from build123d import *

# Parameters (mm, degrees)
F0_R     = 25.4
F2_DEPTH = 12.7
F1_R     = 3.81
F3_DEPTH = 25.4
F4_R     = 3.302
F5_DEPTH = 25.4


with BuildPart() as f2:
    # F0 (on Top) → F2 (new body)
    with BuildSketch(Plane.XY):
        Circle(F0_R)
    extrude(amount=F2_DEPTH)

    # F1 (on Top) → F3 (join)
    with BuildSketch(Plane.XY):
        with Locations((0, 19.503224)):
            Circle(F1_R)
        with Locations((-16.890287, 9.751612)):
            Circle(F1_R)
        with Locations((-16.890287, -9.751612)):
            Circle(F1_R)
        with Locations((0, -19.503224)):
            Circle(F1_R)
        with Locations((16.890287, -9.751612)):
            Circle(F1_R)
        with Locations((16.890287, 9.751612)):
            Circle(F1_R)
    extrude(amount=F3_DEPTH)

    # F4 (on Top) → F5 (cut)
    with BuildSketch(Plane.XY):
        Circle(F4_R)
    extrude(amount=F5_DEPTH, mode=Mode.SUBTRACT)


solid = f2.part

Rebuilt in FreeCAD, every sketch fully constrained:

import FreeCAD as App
import Part
import Sketcher

V = App.Vector
Q = App.Units.Quantity

doc = App.newDocument("Part")
body = doc.addObject("PartDesign::Body", "Body")

# Sketch on XY plane
sketch1 = body.newObject("Sketcher::SketchObject", "Sketch")
sketch1.AttachmentSupport = (doc.getObject("XY_Plane"), [""])
sketch1.MapMode = "FlatFace"
sketch1.addGeometry(Part.Circle(V(0, 0, 0), V(0, 0, 1), 25.4), False)
sketch1.addConstraint([
    Sketcher.Constraint("Coincident", 0, 3, -1, 1),
    Sketcher.Constraint("Diameter", 0, Q("2 in")),
])
pad1 = body.newObject("PartDesign::Pad", "Pad")
pad1.Profile = sketch1
pad1.Length = Q("0.5 in")

# Sketch on XY plane
sketch2 = body.newObject("Sketcher::SketchObject", "Sketch001")
sketch2.AttachmentSupport = (doc.getObject("XY_Plane"), [""])
sketch2.MapMode = "FlatFace"
sketch2.addGeometry([
    Part.Circle(V(0, 19.503224, 0), V(0, 0, 1), 3.81),  # 0
    Part.Circle(V(-16.890287, 9.751612, 0), V(0, 0, 1), 3.81),  # 1
    Part.Circle(V(-16.890287, -9.751612, 0), V(0, 0, 1), 3.81),  # 2
    Part.Circle(V(0, -19.503224, 0), V(0, 0, 1), 3.81),  # 3
    Part.Circle(V(16.890287, -9.751612, 0), V(0, 0, 1), 3.81),  # 4
    Part.Circle(V(16.890287, 9.751612, 0), V(0, 0, 1), 3.81),  # 5
], False)
sketch2.addConstraint([
    Sketcher.Constraint("Equal", 0, 1),
    Sketcher.Constraint("Equal", 1, 2),
    Sketcher.Constraint("Equal", 2, 3),
    Sketcher.Constraint("Equal", 3, 4),
    Sketcher.Constraint("Equal", 4, 5),
    Sketcher.Constraint("Symmetric", 0, 3, 3, 3, -1, 1),
    Sketcher.Constraint("Symmetric", 1, 3, 4, 3, -1, 1),
    Sketcher.Constraint("Symmetric", 2, 3, 5, 3, -1, 1),
    Sketcher.Constraint("Symmetric", 2, 3, 4, 3, -2),
    Sketcher.Constraint("PointOnObject", 0, 3, -2),
    Sketcher.Constraint("Diameter", 0, Q("0.3 in")),
    Sketcher.Constraint("DistanceY", -1, 1, 0, 3, 19.503224),
    Sketcher.Constraint("DistanceX", 1, 3, -1, 1, 16.890287),
    Sketcher.Constraint("DistanceY", -1, 1, 1, 3, 9.751612),
])
pad2 = body.newObject("PartDesign::Pad", "Pad001")
pad2.Profile = sketch2
pad2.Length = Q("1 in")

# Sketch on XY plane
sketch3 = body.newObject("Sketcher::SketchObject", "Sketch002")
sketch3.AttachmentSupport = (doc.getObject("XY_Plane"), [""])
sketch3.MapMode = "FlatFace"
sketch3.addGeometry(Part.Circle(V(0, 0, 0), V(0, 0, 1), 3.302), False)
sketch3.addConstraint([
    Sketcher.Constraint("Coincident", 0, 3, -1, 1),
    Sketcher.Constraint("Diameter", 0, Q("0.26 in")),
])
pocket1 = body.newObject("PartDesign::Pocket", "Pocket")
pocket1.Profile = sketch3
pocket1.Length = Q("1 in")
pocket1.Reversed = True

doc.recompute()
